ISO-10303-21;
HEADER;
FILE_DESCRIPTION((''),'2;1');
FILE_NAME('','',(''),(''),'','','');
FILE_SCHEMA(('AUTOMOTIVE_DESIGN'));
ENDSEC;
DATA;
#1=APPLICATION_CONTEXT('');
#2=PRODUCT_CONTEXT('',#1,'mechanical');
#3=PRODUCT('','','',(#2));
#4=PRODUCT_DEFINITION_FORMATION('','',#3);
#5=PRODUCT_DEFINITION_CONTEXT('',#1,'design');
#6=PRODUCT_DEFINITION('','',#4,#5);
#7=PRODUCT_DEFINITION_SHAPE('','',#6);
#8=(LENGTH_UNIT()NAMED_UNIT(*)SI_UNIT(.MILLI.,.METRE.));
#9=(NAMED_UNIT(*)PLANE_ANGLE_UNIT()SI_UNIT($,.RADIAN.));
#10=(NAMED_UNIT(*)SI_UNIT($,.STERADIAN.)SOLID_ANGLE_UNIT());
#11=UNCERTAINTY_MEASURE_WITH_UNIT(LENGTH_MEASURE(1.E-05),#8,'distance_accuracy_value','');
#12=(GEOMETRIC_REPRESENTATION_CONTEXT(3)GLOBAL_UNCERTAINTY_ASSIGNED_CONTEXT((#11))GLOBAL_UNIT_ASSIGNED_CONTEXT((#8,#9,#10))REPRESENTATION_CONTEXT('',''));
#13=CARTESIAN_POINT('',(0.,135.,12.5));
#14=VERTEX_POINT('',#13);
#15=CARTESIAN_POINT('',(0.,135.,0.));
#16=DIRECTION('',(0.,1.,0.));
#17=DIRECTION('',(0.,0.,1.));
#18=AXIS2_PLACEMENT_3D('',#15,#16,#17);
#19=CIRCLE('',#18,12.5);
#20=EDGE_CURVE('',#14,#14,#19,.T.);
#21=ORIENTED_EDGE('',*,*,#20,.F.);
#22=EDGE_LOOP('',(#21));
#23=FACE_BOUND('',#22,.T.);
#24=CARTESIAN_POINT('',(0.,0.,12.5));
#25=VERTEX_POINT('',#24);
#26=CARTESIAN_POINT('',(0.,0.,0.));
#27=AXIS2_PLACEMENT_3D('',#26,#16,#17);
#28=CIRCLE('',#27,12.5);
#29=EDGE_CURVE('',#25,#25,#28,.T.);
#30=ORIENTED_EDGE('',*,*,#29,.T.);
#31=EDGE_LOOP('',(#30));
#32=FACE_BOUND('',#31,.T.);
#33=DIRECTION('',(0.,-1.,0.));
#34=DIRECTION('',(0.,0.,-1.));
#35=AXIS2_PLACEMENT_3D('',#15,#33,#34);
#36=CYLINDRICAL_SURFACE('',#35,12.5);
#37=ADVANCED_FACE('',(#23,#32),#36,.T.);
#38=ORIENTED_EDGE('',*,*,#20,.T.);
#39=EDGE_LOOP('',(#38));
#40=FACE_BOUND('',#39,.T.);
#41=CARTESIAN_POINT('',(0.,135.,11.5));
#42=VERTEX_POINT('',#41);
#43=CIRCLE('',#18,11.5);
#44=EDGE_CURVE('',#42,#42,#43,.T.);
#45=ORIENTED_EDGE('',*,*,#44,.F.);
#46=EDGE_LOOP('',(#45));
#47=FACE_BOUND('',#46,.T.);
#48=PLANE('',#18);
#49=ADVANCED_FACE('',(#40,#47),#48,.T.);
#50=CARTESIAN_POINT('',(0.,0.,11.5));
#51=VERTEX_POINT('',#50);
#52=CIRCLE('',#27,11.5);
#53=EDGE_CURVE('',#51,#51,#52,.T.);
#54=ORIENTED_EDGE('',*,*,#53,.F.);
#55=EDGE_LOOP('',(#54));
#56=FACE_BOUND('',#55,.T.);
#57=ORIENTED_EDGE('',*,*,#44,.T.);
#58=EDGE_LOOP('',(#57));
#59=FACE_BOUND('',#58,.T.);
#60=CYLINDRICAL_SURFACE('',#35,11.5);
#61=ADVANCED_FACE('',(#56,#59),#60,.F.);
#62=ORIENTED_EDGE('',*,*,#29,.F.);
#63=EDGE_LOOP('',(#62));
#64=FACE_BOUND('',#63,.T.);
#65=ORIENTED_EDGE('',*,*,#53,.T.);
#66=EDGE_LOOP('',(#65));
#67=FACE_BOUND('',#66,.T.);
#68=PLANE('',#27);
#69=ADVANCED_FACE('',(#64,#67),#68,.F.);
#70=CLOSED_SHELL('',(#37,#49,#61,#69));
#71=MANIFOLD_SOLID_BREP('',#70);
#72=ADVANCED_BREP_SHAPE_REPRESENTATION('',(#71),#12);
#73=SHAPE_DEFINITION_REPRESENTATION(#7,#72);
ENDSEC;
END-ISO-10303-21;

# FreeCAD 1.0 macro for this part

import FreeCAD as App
import Part
import Sketcher
from FreeCAD import Vector

doc = App.newDocument("Part")
params = doc.addObject("Spreadsheet::Sheet", "Params")
for row, (alias, value) in enumerate([
    ("sketch1_diameter", "25 mm"),
    ("sketch1_diameter2", "23 mm"),
    ("pad1_length", "135 mm"),
], start=1):
    params.set(f"A{row}", alias)
    params.set(f"B{row}", "=" + value)
    params.setAlias(f"B{row}", alias)

body = doc.addObject("PartDesign::Body", "Body")

# Sketch on XZ plane
sketch1 = body.newObject("Sketcher::SketchObject", "Sketch")
sketch1.AttachmentSupport = (doc.getObject("XZ_Plane"), [""])
sketch1.MapMode = "FlatFace"
sketch1.addGeometry(Part.Circle(Vector(0, 0, 0), Vector(0, 0, 1), 12.5), False)
sketch1.addGeometry(Part.Circle(Vector(0, 0, 0), Vector(0, 0, 1), 11.5), False)
sketch1.addConstraint(Sketcher.Constraint("Coincident", 0, 3, -1, 1))
sketch1.addConstraint(Sketcher.Constraint("Coincident", 1, 3, -1, 1))
sketch1.addConstraint(Sketcher.Constraint("Diameter", 0, 25.0))
sketch1.addConstraint(Sketcher.Constraint("Diameter", 1, 23.0))
sketch1.setExpression("Constraints[2]", "Params.sketch1_diameter")
sketch1.setExpression("Constraints[3]", "Params.sketch1_diameter2")
pad1 = body.newObject("PartDesign::Pad", "Pad")
pad1.Profile = sketch1
pad1.setExpression("Length", "Params.pad1_length")
pad1.Reversed = True

doc.recompute()
